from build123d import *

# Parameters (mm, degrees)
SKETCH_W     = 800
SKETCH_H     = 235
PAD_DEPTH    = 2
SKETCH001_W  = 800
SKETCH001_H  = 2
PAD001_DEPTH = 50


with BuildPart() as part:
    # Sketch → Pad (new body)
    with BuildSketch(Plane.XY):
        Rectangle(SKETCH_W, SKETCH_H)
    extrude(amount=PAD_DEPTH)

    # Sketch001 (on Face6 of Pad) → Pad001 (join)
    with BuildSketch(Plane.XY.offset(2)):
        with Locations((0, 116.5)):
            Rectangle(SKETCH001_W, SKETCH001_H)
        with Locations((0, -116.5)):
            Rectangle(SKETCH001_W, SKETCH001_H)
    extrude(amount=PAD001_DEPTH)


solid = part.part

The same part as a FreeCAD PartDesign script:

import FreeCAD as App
import Part
import Sketcher


def add_polygon(sketch, points):
    """Adds a closed chain of lines whose ends are joined by coincident constraints."""
    first, n = sketch.GeometryCount, len(points)
    for a, b in zip(points, points[1:] + points[:1]):
        sketch.addGeometry(Part.LineSegment(App.Vector(*a, 0), App.Vector(*b, 0)), False)
    for i in range(n):
        sketch.addConstraint(Sketcher.Constraint("Coincident", first + i, 2, first + (i + 1) % n, 1))

doc = App.newDocument("Part")
body = doc.addObject("PartDesign::Body", "Body")

sketch1 = body.newObject("Sketcher::SketchObject", "Sketch")
sketch1.AttachmentSupport = (doc.getObject("XY_Plane"), [""])
sketch1.MapMode = "FlatFace"
add_polygon(sketch1, [(-400, 118), (-400, -118), (400, -118), (400, 118)])
sketch1.addConstraint([
    Sketcher.Constraint("Vertical", 0),
    Sketcher.Constraint("Horizontal", 1),
    Sketcher.Constraint("Vertical", 2),
    Sketcher.Constraint("Horizontal", 3),
    Sketcher.Constraint("Symmetric", 0, 2, 2, 2, -1, 1),
    Sketcher.Constraint("DistanceX", 1, 1, 1, 2, 800.0),
    Sketcher.Constraint("DistanceY", 0, 2, 0, 1, 235.0),
])
pad1 = body.newObject("PartDesign::Pad", "Pad")
pad1.Profile = sketch1
pad1.Length = 2

sketch2 = body.newObject("Sketcher::SketchObject", "Sketch001")
sketch2.AttachmentSupport = (doc.getObject("XY_Plane"), [""])
sketch2.MapMode = "FlatFace"
sketch2.AttachmentOffset = App.Placement(App.Vector(0, 0, 2), App.Rotation())
add_polygon(sketch2, [(-400, 117.5), (-400, 115.5), (400, 115.5), (400, 117.5)])
add_polygon(sketch2, [(-400, -115.5), (-400, -117.5), (400, -117.5), (400, -115.5)])
sketch2.addConstraint([
    Sketcher.Constraint("Vertical", 0),
    Sketcher.Constraint("Horizontal", 1),
    Sketcher.Constraint("Vertical", 2),
    Sketcher.Constraint("Horizontal", 3),
    Sketcher.Constraint("Vertical", 4),
    Sketcher.Constraint("Horizontal", 5),
    Sketcher.Constraint("Vertical", 6),
    Sketcher.Constraint("Horizontal", 7),
    Sketcher.Constraint("Symmetric", 2, 2, 4, 2, -1, 1),
    Sketcher.Constraint("Symmetric", 0, 2, 6, 2, -1, 1),
    Sketcher.Constraint("Vertical", 3, 2, 4, 2),
    Sketcher.Constraint("DistanceX", 1, 1, 1, 2, 800.0),
    Sketcher.Constraint("DistanceY", 0, 2, 0, 1, 2.0),
    Sketcher.Constraint("DistanceY", 4, 2, 0, 2, 233.0),
])
pad2 = body.newObject("PartDesign::Pad", "Pad001")
pad2.Profile = sketch2
pad2.Length = 50

doc.recompute()
